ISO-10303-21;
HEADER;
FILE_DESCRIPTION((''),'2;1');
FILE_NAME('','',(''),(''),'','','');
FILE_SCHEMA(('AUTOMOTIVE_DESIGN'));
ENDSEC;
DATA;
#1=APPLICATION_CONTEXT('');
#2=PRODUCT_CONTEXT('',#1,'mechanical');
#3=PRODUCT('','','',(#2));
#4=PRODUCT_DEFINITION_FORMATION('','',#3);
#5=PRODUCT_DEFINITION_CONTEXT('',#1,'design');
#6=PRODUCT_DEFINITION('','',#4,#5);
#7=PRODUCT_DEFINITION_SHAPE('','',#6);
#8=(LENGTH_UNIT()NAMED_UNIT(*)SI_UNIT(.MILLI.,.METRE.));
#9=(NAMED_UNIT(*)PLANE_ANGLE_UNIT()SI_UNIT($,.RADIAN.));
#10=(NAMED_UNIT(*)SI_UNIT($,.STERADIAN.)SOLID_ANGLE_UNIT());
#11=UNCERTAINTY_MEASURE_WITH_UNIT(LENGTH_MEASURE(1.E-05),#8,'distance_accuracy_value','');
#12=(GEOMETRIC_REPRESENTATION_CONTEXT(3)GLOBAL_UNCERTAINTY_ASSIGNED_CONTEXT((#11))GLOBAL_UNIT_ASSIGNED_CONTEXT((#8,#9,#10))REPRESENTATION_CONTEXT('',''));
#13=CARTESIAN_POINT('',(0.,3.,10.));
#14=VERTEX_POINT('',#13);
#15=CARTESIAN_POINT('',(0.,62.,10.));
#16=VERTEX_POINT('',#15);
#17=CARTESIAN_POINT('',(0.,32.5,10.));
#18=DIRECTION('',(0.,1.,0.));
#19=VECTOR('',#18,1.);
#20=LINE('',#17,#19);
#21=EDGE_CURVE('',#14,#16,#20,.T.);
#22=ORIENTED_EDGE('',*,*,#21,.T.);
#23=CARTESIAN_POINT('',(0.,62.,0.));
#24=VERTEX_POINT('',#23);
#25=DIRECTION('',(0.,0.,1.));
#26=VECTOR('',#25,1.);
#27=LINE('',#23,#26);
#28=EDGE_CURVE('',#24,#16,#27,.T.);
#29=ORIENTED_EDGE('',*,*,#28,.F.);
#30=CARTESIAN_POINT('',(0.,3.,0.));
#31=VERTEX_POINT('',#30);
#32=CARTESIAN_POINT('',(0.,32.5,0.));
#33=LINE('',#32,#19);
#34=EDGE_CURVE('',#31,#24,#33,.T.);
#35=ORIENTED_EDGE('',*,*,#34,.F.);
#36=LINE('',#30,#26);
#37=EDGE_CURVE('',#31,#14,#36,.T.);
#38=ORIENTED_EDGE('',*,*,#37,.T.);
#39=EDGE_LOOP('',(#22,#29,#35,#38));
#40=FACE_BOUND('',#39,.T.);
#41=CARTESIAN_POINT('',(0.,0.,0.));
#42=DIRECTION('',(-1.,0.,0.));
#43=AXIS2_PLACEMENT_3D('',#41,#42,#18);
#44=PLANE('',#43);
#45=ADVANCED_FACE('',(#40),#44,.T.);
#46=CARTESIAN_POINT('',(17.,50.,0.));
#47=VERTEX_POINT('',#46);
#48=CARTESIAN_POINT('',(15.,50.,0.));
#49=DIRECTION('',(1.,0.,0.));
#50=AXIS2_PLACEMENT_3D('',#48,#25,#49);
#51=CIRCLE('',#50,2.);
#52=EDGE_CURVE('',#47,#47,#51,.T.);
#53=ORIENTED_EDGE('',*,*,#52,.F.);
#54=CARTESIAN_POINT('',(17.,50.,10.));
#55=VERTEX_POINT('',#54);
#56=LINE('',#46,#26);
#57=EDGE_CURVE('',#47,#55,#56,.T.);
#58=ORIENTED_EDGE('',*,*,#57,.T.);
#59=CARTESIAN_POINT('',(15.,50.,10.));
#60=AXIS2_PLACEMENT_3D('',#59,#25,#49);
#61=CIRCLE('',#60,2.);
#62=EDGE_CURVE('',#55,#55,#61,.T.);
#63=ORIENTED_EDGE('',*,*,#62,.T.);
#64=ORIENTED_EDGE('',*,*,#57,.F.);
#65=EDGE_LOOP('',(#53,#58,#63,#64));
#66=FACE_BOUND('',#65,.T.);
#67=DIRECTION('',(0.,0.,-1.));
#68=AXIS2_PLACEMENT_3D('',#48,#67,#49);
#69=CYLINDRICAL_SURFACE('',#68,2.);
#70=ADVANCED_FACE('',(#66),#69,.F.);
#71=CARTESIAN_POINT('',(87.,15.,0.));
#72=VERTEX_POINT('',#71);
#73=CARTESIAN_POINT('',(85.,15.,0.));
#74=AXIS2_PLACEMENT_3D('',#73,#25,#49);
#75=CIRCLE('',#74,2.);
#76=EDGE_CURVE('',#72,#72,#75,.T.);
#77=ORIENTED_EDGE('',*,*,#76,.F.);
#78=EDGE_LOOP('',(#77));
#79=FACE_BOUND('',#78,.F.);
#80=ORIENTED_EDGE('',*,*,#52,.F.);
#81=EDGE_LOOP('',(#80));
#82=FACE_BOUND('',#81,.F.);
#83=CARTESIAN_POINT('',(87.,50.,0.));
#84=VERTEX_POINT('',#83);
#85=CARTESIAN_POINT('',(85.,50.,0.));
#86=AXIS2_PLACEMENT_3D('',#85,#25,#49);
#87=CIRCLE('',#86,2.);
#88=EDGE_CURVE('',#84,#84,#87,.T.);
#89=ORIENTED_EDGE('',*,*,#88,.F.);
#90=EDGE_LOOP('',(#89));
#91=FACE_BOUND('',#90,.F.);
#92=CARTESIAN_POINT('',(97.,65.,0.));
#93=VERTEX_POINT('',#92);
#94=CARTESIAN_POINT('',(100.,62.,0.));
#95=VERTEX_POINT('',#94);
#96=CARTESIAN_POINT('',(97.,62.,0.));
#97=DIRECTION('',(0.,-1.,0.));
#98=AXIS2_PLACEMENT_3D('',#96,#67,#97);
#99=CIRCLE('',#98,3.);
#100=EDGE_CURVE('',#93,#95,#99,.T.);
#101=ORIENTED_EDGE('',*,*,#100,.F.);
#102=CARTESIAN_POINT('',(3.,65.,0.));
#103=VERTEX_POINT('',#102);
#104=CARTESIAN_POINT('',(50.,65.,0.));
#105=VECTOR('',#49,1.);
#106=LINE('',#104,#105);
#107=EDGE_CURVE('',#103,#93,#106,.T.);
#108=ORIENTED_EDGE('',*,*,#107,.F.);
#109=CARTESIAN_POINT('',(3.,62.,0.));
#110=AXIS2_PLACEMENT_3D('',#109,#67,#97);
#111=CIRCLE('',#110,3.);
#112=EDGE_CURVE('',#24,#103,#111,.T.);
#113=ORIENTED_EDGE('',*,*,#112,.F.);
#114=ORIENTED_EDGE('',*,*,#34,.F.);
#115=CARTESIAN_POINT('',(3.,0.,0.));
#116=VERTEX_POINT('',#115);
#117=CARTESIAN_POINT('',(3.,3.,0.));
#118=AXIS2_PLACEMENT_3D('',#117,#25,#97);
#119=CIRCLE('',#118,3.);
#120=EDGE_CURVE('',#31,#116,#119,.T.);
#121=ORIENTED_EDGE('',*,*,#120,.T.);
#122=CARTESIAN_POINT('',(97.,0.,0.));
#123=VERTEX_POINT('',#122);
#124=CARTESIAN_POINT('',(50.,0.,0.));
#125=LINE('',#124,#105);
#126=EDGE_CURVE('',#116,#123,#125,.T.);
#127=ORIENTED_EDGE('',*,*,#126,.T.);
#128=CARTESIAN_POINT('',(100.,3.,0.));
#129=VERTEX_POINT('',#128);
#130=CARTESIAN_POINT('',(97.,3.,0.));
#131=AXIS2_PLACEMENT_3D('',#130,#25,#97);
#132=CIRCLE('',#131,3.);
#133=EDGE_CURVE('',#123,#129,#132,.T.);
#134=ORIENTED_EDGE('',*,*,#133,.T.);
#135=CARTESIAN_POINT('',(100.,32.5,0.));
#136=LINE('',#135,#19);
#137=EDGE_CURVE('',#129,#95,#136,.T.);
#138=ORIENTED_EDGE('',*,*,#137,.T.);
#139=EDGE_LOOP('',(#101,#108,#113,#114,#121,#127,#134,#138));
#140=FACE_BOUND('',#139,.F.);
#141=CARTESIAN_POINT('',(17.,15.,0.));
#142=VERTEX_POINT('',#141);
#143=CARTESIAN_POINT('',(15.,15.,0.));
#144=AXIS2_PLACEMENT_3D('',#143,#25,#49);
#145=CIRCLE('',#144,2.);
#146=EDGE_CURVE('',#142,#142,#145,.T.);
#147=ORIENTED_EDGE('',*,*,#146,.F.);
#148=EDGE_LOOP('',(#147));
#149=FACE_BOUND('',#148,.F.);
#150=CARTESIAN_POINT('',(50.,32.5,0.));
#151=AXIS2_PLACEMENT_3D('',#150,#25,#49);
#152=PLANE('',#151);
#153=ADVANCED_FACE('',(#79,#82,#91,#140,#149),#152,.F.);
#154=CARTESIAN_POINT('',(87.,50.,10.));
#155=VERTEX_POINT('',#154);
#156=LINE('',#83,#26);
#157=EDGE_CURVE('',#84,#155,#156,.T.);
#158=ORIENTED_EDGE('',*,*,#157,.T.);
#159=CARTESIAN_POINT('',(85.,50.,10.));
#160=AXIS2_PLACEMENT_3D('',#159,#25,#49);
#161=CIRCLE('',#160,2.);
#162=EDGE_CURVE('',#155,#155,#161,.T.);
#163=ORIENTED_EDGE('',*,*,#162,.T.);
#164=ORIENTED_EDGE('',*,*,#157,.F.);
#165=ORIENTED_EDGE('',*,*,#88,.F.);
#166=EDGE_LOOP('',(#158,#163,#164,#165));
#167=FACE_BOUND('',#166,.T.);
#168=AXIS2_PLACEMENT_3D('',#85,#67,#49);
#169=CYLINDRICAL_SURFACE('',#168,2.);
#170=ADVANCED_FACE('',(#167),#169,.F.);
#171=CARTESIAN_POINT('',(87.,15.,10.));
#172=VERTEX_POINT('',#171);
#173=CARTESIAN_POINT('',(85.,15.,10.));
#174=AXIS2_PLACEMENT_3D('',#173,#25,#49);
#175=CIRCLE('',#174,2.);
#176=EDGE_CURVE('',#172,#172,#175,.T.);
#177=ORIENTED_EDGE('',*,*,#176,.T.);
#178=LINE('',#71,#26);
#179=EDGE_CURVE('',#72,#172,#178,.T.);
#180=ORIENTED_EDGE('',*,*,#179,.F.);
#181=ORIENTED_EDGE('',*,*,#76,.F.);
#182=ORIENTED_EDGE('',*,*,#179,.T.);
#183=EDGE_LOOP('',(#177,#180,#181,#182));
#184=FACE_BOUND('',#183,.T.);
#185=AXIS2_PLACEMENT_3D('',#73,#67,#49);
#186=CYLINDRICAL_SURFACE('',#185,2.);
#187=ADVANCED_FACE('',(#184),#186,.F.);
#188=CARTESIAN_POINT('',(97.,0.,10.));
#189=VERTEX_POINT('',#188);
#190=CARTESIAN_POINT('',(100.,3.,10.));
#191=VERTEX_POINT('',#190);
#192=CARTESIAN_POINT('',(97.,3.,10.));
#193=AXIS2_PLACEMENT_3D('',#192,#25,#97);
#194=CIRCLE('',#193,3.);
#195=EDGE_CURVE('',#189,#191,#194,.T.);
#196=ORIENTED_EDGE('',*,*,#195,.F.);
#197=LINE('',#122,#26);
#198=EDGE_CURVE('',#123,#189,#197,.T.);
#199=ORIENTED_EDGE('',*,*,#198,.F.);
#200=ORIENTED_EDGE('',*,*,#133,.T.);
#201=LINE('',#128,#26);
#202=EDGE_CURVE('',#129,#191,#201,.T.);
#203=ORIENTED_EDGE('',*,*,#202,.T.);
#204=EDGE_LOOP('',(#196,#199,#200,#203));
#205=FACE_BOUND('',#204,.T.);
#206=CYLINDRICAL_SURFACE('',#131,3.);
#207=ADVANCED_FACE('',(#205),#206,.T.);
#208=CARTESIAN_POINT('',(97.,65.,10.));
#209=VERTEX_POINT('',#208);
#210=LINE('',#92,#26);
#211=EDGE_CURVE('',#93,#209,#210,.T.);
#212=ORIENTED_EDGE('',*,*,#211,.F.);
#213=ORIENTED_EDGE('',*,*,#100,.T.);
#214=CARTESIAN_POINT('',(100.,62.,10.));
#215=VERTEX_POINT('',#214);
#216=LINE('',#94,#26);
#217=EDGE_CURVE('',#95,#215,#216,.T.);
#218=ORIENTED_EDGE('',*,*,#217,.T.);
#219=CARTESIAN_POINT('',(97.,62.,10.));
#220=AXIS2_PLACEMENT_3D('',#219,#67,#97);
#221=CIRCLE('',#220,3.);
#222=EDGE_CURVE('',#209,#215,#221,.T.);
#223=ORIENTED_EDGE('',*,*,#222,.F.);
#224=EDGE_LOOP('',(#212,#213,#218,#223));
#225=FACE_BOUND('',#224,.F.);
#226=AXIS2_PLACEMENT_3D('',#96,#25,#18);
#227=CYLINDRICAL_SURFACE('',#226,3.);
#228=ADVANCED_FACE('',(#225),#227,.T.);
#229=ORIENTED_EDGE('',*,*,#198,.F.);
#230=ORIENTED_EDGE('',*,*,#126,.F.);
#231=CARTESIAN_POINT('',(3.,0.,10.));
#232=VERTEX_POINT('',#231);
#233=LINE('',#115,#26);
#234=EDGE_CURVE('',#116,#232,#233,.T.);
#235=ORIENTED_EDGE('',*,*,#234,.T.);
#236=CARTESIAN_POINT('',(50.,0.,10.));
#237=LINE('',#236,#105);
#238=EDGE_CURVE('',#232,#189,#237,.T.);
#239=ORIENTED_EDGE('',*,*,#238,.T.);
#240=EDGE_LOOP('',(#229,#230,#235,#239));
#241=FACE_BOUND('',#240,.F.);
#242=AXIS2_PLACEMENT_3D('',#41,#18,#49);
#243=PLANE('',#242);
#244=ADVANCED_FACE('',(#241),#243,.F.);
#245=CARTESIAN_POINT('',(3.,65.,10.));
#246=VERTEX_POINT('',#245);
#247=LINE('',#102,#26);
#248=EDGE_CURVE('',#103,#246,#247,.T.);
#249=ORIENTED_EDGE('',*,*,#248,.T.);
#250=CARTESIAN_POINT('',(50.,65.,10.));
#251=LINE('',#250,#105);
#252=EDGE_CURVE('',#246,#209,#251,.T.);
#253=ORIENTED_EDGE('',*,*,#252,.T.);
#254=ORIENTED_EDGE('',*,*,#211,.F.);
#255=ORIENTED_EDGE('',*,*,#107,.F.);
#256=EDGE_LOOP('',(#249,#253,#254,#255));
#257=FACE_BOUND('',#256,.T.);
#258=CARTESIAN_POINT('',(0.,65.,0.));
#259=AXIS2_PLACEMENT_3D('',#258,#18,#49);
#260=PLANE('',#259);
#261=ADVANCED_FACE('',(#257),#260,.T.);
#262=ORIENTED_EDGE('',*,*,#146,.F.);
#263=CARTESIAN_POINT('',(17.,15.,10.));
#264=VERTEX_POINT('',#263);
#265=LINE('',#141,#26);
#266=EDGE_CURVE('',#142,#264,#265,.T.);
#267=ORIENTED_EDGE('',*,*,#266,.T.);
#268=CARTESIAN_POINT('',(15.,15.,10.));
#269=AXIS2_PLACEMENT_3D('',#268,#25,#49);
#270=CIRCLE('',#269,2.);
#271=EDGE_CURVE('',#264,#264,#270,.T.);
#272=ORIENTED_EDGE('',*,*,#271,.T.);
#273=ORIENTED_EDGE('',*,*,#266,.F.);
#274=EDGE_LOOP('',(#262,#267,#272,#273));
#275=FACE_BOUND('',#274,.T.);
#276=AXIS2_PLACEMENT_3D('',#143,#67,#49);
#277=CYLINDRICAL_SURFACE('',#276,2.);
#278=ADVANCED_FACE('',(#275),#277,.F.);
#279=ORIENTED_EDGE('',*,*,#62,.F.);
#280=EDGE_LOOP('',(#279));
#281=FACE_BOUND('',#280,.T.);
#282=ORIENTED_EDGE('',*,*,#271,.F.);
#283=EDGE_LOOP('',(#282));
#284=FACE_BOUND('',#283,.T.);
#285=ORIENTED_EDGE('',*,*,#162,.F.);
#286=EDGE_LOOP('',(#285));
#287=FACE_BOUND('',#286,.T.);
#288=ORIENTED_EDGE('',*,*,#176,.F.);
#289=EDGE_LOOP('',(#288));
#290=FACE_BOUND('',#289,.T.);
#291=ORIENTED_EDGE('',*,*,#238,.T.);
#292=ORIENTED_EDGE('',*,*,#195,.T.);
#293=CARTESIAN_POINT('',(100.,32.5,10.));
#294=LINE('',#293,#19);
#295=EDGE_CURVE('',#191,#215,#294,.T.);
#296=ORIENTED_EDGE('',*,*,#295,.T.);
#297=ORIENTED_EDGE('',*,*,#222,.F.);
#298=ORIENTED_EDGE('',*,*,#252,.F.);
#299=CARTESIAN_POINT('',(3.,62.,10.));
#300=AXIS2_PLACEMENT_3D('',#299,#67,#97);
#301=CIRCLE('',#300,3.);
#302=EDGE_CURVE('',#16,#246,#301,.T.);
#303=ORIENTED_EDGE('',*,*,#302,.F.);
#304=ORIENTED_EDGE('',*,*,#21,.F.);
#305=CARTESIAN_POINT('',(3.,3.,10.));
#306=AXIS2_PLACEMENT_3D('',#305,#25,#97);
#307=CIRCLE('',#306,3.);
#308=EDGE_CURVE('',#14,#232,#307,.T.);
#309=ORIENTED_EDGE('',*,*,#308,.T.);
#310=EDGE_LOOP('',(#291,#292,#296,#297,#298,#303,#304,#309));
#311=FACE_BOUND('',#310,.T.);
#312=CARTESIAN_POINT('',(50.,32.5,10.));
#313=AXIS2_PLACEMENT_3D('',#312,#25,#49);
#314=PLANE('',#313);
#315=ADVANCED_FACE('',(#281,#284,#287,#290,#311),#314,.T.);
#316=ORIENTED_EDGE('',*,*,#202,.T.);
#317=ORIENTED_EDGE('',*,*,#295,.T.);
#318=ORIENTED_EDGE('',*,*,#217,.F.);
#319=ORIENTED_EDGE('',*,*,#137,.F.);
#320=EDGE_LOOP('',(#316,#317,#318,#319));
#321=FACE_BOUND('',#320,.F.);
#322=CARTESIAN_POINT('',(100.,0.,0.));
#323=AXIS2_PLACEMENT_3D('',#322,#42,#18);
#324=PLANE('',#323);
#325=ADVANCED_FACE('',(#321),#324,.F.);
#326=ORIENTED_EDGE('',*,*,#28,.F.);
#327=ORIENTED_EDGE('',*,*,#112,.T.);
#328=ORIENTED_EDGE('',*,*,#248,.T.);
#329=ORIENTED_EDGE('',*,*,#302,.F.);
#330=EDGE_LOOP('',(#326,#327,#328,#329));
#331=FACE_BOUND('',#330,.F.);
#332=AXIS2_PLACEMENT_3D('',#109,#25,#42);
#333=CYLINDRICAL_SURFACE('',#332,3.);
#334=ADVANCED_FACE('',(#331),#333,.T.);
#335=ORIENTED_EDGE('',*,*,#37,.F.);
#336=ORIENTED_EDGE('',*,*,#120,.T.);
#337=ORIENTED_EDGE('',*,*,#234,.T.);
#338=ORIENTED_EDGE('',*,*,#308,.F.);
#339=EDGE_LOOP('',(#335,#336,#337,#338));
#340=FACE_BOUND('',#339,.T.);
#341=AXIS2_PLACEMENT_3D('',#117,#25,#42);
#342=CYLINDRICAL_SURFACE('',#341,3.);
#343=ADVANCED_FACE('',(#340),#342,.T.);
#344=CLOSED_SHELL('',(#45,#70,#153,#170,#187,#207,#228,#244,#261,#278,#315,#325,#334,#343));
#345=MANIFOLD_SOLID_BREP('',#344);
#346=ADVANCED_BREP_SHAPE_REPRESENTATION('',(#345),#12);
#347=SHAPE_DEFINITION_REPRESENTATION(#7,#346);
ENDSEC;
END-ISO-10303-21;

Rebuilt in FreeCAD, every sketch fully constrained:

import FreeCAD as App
import Part
import Sketcher
from FreeCAD import Vector
Q = App.Units.Quantity


def edges_at(feature, points):
    """Names of the edges that pass closest to the given points."""
    edges = feature.Shape.Edges
    near = lambda p: min(range(len(edges)), key=lambda i: edges[i].distToShape(Part.Vertex(*p))[0])
    return sorted({f"Edge{near(p) + 1}" for p in points})


def add_polygon(sketch, points):
    """Adds a closed chain of lines whose ends are joined by coincident constraints."""
    first, n = sketch.GeometryCount, len(points)
    for a, b in zip(points, points[1:] + points[:1]):
        sketch.addGeometry(Part.LineSegment(App.Vector(*a, 0), App.Vector(*b, 0)), False)
    for i in range(n):
        sketch.addConstraint(Sketcher.Constraint("Coincident", first + i, 2, first + (i + 1) % n, 1))

doc = App.newDocument("Part")
body = doc.addObject("PartDesign::Body", "Body")

# Sketch on XY plane
sketch1 = body.newObject("Sketcher::SketchObject", "Sketch")
sketch1.AttachmentSupport = (doc.getObject("XY_Plane"), [""])
sketch1.MapMode = "FlatFace"
add_polygon(sketch1, [(0, 65), (0, 0), (100, 0), (100, 65)])  # lines 0-3
sketch1.addGeometry(Part.Circle(Vector(15, 15, 0), Vector(0, 0, 1), 2), False)  # 4
sketch1.addGeometry(Part.Circle(Vector(85, 15, 0), Vector(0, 0, 1), 2), False)  # 5
sketch1.addGeometry(Part.Circle(Vector(15, 50, 0), Vector(0, 0, 1), 2), False)  # 6
sketch1.addGeometry(Part.Circle(Vector(85, 50, 0), Vector(0, 0, 1), 2), False)  # 7
sketch1.addConstraint([
    Sketcher.Constraint("Vertical", 0),
    Sketcher.Constraint("Horizontal", 1),
    Sketcher.Constraint("Vertical", 2),
    Sketcher.Constraint("Horizontal", 3),
    Sketcher.Constraint("Coincident", 0, 2, -1, 1),
    Sketcher.Constraint("Equal", 4, 5),
    Sketcher.Constraint("Equal", 5, 6),
    Sketcher.Constraint("Equal", 6, 7),
    Sketcher.Constraint("Horizontal", 4, 3, 5, 3),
    Sketcher.Constraint("Horizontal", 6, 3, 7, 3),
    Sketcher.Constraint("Vertical", 4, 3, 6, 3),
    Sketcher.Constraint("Vertical", 5, 3, 7, 3),
    Sketcher.Constraint("Diameter", 4, Q("4 mm")),
    Sketcher.Constraint("DistanceX", 1, 1, 1, 2, Q("100 mm")),
    Sketcher.Constraint("DistanceY", 0, 2, 0, 1, Q("65 mm")),
    Sketcher.Constraint("DistanceX", -1, 1, 4, 3, Q("15 mm")),
    Sketcher.Constraint("DistanceY", -1, 1, 4, 3, Q("15 mm")),
    Sketcher.Constraint("DistanceX", -1, 1, 5, 3, Q("85 mm")),
    Sketcher.Constraint("DistanceY", -1, 1, 6, 3, Q("50 mm")),
])
pad1 = body.newObject("PartDesign::Pad", "Pad")
pad1.Profile = sketch1
pad1.Length = 10
doc.recompute()

fillet = body.newObject("PartDesign::Fillet", "Fillet")
fillet.Base = (pad1, edges_at(pad1, [
    (100, 0, 5),
    (0, 0, 5),
    (100, 65, 5),
    (0, 65, 5),
]))
fillet.Radius = 3

doc.recompute()
